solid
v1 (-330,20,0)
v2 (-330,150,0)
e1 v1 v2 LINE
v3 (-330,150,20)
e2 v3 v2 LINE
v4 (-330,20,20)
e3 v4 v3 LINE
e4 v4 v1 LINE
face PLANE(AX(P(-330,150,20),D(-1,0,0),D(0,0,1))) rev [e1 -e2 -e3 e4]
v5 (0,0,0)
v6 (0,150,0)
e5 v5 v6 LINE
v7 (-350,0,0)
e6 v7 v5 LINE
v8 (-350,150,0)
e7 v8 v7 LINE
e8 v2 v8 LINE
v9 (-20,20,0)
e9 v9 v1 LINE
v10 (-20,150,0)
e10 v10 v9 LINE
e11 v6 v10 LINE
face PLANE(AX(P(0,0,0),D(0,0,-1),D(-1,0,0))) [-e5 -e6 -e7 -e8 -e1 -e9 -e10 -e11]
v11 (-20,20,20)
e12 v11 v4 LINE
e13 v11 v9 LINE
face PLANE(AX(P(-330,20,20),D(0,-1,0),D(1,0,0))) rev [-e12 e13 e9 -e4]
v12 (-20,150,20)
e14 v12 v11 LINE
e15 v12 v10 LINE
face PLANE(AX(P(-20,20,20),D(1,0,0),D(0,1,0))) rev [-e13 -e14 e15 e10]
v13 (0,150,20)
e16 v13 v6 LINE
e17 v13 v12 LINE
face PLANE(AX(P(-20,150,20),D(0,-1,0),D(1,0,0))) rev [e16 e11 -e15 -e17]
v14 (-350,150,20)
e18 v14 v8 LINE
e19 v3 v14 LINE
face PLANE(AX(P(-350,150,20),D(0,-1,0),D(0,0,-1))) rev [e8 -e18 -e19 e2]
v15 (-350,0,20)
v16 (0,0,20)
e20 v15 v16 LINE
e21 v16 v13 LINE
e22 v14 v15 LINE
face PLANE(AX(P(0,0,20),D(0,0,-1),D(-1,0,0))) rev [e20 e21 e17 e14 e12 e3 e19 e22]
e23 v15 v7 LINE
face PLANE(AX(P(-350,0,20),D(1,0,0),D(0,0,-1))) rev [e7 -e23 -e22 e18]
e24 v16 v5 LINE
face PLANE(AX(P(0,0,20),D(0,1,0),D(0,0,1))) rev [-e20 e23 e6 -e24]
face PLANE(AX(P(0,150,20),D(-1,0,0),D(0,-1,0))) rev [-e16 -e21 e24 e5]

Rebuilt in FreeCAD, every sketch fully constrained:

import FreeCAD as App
import Part
import Sketcher
from FreeCAD import Vector


def add_polygon(sketch, points):
    """Adds a closed chain of lines whose ends are joined by coincident constraints."""
    first, n = sketch.GeometryCount, len(points)
    for a, b in zip(points, points[1:] + points[:1]):
        sketch.addGeometry(Part.LineSegment(App.Vector(*a, 0), App.Vector(*b, 0)), False)
    for i in range(n):
        sketch.addConstraint(Sketcher.Constraint("Coincident", first + i, 2, first + (i + 1) % n, 1))

doc = App.newDocument("Part")
body = doc.addObject("PartDesign::Body", "Body")

# Sketch on XY plane
sketch1 = body.newObject("Sketcher::SketchObject", "Sketch")
sketch1.AttachmentSupport = (doc.getObject("XY_Plane"), [""])
sketch1.MapMode = "FlatFace"
add_polygon(sketch1, [(-350, 0), (0, 0), (0, 150), (-20, 150), (-20, 20), (-330, 20), (-330, 150), (-350, 150)])  # lines 0-7
sketch1.addConstraint(Sketcher.Constraint("Horizontal", 0))
sketch1.addConstraint(Sketcher.Constraint("Vertical", 1))
sketch1.addConstraint(Sketcher.Constraint("Horizontal", 2))
sketch1.addConstraint(Sketcher.Constraint("Vertical", 3))
sketch1.addConstraint(Sketcher.Constraint("Horizontal", 4))
sketch1.addConstraint(Sketcher.Constraint("Vertical", 5))
sketch1.addConstraint(Sketcher.Constraint("Horizontal", 6))
sketch1.addConstraint(Sketcher.Constraint("Vertical", 7))
sketch1.addConstraint(Sketcher.Constraint("Coincident", 0, 2, -1, 1))
sketch1.addConstraint(Sketcher.Constraint("Horizontal", 2, 2, 5, 2))
sketch1.addConstraint(Sketcher.Constraint("Equal", 2, 6))
sketch1.addConstraint(Sketcher.Constraint("DistanceX", 0, 1, 0, 2, 350.0))
sketch1.addConstraint(Sketcher.Constraint("DistanceX", 2, 2, 2, 1, 20.0))
sketch1.addConstraint(Sketcher.Constraint("DistanceY", 1, 1, 1, 2, 150.0))
sketch1.addConstraint(Sketcher.Constraint("DistanceY", 3, 2, 3, 1, 130.0))
pad1 = body.newObject("PartDesign::Pad", "Pad")
pad1.Profile = sketch1
pad1.Length = 20

doc.recompute()
